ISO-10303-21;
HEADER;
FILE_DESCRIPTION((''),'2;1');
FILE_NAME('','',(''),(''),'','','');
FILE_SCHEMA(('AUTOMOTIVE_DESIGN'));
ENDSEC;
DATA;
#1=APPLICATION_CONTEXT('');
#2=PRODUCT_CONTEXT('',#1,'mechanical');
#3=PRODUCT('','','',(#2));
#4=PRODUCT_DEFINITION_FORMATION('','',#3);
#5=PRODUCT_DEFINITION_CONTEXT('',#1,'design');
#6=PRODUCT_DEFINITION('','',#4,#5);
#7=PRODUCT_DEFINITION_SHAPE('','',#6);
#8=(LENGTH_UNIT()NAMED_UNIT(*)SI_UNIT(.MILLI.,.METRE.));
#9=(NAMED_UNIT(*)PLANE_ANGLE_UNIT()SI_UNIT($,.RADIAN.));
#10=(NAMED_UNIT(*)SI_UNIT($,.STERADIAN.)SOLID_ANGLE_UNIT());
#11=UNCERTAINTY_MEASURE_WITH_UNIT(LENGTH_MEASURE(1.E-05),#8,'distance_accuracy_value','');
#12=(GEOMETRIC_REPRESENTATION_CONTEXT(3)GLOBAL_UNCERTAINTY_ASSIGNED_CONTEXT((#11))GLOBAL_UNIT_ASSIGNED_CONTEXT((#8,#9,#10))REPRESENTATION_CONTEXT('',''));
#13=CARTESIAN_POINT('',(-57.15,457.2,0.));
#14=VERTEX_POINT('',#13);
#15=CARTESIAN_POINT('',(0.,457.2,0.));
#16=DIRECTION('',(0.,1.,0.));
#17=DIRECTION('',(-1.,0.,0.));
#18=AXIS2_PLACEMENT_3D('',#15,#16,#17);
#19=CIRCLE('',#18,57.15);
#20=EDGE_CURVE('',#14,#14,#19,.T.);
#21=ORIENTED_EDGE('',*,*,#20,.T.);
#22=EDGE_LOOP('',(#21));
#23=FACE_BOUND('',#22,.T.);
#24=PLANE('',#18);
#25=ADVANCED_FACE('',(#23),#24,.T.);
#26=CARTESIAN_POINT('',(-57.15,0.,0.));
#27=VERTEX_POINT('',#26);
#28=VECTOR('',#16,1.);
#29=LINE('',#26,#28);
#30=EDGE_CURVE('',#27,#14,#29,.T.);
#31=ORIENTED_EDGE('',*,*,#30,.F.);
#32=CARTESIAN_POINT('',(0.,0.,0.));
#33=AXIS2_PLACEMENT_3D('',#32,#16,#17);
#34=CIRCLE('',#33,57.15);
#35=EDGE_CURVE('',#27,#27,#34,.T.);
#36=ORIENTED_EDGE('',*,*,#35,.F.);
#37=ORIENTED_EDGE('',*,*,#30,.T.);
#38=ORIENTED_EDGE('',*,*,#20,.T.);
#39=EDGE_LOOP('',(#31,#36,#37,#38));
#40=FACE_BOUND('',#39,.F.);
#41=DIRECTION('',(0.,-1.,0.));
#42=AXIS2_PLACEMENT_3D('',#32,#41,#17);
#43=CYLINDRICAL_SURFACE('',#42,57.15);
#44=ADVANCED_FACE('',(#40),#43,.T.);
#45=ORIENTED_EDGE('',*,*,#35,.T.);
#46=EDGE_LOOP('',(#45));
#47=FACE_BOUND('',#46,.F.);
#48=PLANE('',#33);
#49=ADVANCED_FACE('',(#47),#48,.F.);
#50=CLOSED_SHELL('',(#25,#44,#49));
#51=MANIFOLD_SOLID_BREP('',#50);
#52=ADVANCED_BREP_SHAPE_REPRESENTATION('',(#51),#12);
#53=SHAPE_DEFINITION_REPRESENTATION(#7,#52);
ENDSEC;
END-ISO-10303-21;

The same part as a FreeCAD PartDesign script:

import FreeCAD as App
import Part
import Sketcher

V = App.Vector
Q = App.Units.Quantity

doc = App.newDocument("Part")
params = doc.addObject("Spreadsheet::Sheet", "Params")
for row, (alias, value) in enumerate([
    ("sketch1_diameter", "4.5 in"),
    ("pad1_length", "18 in"),
], start=1):
    params.set(f"A{row}", alias)
    params.set(f"B{row}", "=" + value)
    params.setAlias(f"B{row}", alias)

body = doc.addObject("PartDesign::Body", "Body")

sketch1 = doc.addObject("Sketcher::SketchObject", "Sketch")
body.addObject(sketch1)
sketch1.AttachmentSupport = (doc.XZ_Plane, [""])
sketch1.MapMode = "FlatFace"
sketch1.addGeometry(Part.Circle(V(0, 0, 0), V(0, 0, 1), 57), False)
sketch1.addConstraint(Sketcher.Constraint("Coincident", 0, 3, -1, 1))
sketch1.addConstraint(Sketcher.Constraint("Diameter", 0, Q("4.5 in")))
sketch1.setExpression("Constraints[1]", "Params.sketch1_diameter")
pad1 = doc.addObject("PartDesign::Pad", "Pad")
body.addObject(pad1)
pad1.Profile = sketch1
pad1.setExpression("Length", "Params.pad1_length")
pad1.Reversed = True

doc.recompute()
